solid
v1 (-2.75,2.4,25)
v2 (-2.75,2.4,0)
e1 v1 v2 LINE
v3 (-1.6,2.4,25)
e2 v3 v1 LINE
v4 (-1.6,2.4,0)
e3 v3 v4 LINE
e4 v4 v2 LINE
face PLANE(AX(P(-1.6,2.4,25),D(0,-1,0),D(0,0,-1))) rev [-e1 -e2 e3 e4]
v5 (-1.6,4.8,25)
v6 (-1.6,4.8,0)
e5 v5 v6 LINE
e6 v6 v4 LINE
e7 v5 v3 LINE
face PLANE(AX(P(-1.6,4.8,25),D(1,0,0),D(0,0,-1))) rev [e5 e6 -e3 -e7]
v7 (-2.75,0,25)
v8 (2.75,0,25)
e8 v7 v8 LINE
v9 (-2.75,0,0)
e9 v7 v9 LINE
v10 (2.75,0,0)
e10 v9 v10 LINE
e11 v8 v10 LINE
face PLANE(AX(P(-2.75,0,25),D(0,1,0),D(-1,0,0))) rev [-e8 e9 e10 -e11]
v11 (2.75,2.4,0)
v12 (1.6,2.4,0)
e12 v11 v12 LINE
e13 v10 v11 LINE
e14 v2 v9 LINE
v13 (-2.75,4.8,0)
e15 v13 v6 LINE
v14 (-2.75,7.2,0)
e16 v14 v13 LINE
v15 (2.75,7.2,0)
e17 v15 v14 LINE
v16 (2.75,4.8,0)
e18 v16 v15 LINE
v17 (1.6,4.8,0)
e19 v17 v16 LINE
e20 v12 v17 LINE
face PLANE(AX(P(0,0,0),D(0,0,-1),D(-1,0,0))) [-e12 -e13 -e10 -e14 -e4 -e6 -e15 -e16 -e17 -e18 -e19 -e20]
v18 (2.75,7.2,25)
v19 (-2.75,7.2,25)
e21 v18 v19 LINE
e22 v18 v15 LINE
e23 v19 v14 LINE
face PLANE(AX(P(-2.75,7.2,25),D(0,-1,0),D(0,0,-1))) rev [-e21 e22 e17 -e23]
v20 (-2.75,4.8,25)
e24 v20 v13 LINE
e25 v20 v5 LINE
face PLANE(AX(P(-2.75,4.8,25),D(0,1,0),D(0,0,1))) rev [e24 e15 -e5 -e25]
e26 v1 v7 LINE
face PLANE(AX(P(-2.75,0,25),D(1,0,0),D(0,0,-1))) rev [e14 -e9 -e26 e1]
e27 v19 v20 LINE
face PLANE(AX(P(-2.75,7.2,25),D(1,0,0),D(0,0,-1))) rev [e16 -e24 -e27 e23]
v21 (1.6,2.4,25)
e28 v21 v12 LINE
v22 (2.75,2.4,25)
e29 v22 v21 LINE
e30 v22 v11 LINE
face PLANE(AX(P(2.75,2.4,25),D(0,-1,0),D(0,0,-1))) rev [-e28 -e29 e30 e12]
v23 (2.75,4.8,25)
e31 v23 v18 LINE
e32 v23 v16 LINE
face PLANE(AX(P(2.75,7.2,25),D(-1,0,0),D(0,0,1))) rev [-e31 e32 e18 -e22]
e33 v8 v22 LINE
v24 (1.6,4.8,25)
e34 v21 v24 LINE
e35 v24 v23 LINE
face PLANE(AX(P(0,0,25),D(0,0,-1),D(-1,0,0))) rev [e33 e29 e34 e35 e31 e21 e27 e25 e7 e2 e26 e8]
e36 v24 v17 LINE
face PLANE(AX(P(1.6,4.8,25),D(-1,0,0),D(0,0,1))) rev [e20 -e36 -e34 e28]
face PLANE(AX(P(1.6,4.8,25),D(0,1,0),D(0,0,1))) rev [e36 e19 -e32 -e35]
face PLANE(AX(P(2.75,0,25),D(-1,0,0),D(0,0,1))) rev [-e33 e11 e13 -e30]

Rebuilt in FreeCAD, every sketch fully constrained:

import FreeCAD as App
import Part
import Sketcher


def add_polygon(sketch, points):
    """Adds a closed chain of lines whose ends are joined by coincident constraints."""
    first, n = sketch.GeometryCount, len(points)
    for a, b in zip(points, points[1:] + points[:1]):
        sketch.addGeometry(Part.LineSegment(App.Vector(*a, 0), App.Vector(*b, 0)), False)
    for i in range(n):
        sketch.addConstraint(Sketcher.Constraint("Coincident", first + i, 2, first + (i + 1) % n, 1))

doc = App.newDocument("Part")
body = doc.addObject("PartDesign::Body", "Body")

sketch1 = doc.addObject("Sketcher::SketchObject", "Sketch")
body.addObject(sketch1)
sketch1.AttachmentSupport = (doc.XY_Plane, [""])
sketch1.MapMode = "FlatFace"
add_polygon(sketch1, [(-2.8, 0), (2.8, 0), (2.8, 2.4), (1.6, 2.4), (1.6, 4.8), (2.8, 4.8), (2.8, 7.2), (-2.8, 7.2), (-2.8, 4.8), (-1.6, 4.8), (-1.6, 2.4), (-2.8, 2.4)])
sketch1.addConstraint([
    Sketcher.Constraint("Horizontal", 0),
    Sketcher.Constraint("Vertical", 1),
    Sketcher.Constraint("Horizontal", 2),
    Sketcher.Constraint("Vertical", 3),
    Sketcher.Constraint("Horizontal", 4),
    Sketcher.Constraint("Vertical", 5),
    Sketcher.Constraint("Horizontal", 6),
    Sketcher.Constraint("Vertical", 7),
    Sketcher.Constraint("Horizontal", 8),
    Sketcher.Constraint("Vertical", 9),
    Sketcher.Constraint("Horizontal", 10),
    Sketcher.Constraint("Vertical", 11),
    Sketcher.Constraint("Symmetric", 0, 2, 11, 2, -1, 1),
    Sketcher.Constraint("Symmetric", 4, 2, 7, 2, -2),
    Sketcher.Constraint("Symmetric", 2, 2, 9, 2, -2),
    Sketcher.Constraint("Vertical", 1, 2, 4, 2),
    Sketcher.Constraint("Equal", 1, 3),
    Sketcher.Constraint("Equal", 3, 5),
    Sketcher.Constraint("DistanceX", 0, 1, 0, 2, 5.5),
    Sketcher.Constraint("DistanceY", 1, 1, 1, 2, 2.4),
    Sketcher.Constraint("DistanceX", 2, 2, 2, 1, 1.15),
])
pad1 = doc.addObject("PartDesign::Pad", "Pad")
body.addObject(pad1)
pad1.Profile = sketch1
pad1.Length = 25

doc.recompute()
